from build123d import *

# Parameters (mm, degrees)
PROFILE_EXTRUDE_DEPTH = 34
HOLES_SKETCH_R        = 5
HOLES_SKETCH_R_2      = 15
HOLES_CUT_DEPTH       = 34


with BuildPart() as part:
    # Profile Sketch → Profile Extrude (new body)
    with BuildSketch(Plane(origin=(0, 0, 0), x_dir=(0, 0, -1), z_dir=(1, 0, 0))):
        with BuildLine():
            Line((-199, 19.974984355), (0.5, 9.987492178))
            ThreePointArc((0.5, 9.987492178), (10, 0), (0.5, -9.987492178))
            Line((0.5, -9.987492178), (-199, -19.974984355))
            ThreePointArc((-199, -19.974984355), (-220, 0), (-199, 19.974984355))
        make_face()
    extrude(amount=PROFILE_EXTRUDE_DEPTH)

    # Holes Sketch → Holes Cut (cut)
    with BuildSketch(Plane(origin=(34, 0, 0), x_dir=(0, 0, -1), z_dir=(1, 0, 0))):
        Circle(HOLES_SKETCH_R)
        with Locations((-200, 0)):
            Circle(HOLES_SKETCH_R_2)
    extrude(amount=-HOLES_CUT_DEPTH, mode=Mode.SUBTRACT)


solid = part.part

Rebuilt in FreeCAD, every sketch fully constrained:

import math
import FreeCAD as App
import Part
import Sketcher
from FreeCAD import Vector

doc = App.newDocument("Part")
body = doc.addObject("PartDesign::Body", "Body")

# Sketch on YZ plane
sketch1 = body.newObject("Sketcher::SketchObject", "Sketch")
sketch1.AttachmentSupport = (doc.getObject("YZ_Plane"), [""])
sketch1.MapMode = "FlatFace"
sketch1.addGeometry([
    Part.LineSegment(Vector(10, 0, 0), Vector(20, 199, 0)),
    Part.ArcOfCircle(Part.Circle(Vector(0, 200, 0), Vector(0, 0, 1), 20), math.radians(-3), math.radians(183)),
    Part.LineSegment(Vector(-20, 199, 0), Vector(-10, 0, 0)),
    Part.ArcOfCircle(Part.Circle(Vector(0, 0, 0), Vector(0, 0, 1), 10), math.radians(-177), math.radians(-3)),
], False)
sketch1.addConstraint([
    Sketcher.Constraint("Tangent", 0, 2, 1, 1),
    Sketcher.Constraint("Tangent", 1, 2, 2, 1),
    Sketcher.Constraint("Tangent", 2, 2, 3, 1),
    Sketcher.Constraint("Tangent", 3, 2, 0, 1),
    Sketcher.Constraint("Coincident", 3, 3, -1, 1),
    Sketcher.Constraint("PointOnObject", 1, 3, -2),
    Sketcher.Constraint("Radius", 1, 20.0),
    Sketcher.Constraint("Radius", 3, 10.0),
    Sketcher.Constraint("DistanceY", -1, 1, 1, 3, 200.0),
])
pad1 = body.newObject("PartDesign::Pad", "Pad")
pad1.Profile = sketch1
pad1.Length = 34

# Sketch on YZ plane
sketch2 = body.newObject("Sketcher::SketchObject", "Sketch001")
sketch2.AttachmentSupport = (doc.getObject("YZ_Plane"), [""])
sketch2.MapMode = "FlatFace"
sketch2.AttachmentOffset = App.Placement(Vector(0, 0, 34), App.Rotation())
sketch2.addGeometry([
    Part.Circle(Vector(0, 0, 0), Vector(0, 0, 1), 5),
    Part.Circle(Vector(0, 200, 0), Vector(0, 0, 1), 15),
], False)
sketch2.addConstraint([
    Sketcher.Constraint("Coincident", 0, 3, -1, 1),
    Sketcher.Constraint("PointOnObject", 1, 3, -2),
    Sketcher.Constraint("Diameter", 0, 10.0),
    Sketcher.Constraint("Diameter", 1, 30.0),
    Sketcher.Constraint("DistanceY", -1, 1, 1, 3, 200.0),
])
pocket1 = body.newObject("PartDesign::Pocket", "Pocket")
pocket1.Profile = sketch2
pocket1.Length = 34

doc.recompute()
